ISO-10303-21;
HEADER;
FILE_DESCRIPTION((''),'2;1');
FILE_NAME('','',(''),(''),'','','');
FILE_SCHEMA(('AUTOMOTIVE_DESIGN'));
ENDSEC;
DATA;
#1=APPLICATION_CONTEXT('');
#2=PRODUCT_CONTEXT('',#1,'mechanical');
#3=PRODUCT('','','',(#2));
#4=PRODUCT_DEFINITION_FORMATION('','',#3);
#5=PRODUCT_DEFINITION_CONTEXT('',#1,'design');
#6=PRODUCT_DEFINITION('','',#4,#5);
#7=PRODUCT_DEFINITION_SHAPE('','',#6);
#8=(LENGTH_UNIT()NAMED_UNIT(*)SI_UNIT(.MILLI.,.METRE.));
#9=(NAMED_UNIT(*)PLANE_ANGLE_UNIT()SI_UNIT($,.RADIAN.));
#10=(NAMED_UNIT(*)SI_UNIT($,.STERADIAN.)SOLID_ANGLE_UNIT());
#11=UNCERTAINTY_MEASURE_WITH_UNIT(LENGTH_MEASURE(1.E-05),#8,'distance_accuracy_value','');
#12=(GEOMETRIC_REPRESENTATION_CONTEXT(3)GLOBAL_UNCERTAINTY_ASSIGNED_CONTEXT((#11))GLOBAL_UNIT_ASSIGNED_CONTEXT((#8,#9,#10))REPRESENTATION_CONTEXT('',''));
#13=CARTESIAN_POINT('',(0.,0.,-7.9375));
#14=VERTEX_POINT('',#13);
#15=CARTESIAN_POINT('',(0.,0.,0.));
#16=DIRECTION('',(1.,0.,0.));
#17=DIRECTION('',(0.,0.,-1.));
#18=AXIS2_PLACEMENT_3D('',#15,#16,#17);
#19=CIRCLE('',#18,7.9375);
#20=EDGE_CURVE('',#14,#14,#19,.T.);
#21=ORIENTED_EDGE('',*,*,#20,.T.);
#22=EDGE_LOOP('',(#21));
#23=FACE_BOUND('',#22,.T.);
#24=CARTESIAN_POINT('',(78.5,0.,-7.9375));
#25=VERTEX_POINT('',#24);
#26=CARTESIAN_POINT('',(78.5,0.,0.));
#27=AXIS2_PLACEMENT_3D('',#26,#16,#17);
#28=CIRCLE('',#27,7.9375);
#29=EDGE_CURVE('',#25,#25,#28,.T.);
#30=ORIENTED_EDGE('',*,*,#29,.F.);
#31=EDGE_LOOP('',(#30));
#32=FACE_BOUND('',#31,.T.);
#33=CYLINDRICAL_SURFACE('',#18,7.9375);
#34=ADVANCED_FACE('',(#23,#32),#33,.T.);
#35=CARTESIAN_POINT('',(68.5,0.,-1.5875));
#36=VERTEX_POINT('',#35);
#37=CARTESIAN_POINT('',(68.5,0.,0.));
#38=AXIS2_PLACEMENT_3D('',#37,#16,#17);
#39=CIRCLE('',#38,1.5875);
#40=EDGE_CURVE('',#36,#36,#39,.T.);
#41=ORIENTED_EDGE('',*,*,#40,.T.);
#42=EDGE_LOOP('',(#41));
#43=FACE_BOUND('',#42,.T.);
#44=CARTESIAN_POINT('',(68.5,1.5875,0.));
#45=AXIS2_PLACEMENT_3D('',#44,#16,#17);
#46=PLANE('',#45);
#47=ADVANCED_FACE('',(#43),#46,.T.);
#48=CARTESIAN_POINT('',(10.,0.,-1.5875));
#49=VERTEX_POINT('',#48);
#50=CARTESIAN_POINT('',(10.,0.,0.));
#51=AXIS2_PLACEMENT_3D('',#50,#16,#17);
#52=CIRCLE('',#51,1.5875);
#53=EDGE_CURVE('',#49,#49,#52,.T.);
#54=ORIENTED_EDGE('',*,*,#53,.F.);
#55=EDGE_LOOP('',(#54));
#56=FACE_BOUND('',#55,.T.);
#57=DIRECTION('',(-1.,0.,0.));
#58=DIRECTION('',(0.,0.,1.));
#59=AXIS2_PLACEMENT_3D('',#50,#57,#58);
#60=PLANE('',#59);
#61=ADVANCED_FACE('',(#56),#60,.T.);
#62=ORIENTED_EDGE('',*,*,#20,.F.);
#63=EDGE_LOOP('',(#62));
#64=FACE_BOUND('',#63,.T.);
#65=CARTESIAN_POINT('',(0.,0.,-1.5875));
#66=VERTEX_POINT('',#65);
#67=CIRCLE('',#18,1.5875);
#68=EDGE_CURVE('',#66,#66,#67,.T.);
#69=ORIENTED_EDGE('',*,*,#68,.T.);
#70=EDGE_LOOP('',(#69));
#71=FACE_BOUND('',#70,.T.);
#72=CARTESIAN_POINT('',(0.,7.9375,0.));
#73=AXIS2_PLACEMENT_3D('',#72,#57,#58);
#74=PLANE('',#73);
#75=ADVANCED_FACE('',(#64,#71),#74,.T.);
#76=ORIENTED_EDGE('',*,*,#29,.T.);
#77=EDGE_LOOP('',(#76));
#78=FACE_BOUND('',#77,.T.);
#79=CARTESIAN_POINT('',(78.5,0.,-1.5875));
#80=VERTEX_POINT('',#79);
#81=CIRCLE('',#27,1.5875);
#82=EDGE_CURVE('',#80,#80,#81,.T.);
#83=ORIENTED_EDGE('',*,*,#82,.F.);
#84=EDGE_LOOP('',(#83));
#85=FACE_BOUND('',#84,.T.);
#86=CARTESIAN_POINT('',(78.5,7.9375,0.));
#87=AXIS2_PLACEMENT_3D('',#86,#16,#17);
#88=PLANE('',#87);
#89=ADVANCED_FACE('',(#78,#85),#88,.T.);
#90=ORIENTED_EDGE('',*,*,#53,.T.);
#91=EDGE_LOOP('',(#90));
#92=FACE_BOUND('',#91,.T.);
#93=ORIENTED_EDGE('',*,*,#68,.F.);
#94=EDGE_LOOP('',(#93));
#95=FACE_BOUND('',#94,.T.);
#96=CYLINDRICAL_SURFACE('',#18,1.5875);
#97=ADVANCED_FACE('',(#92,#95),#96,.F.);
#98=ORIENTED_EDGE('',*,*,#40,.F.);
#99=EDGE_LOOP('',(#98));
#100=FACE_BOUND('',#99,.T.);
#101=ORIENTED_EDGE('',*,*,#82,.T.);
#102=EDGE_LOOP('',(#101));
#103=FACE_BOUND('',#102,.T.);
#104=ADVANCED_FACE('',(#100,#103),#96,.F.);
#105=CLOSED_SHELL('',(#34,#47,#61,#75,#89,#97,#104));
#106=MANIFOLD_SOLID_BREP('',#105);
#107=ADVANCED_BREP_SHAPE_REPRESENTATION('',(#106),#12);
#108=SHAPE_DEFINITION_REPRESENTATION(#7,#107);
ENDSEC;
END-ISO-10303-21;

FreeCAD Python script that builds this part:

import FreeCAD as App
import Part
import Sketcher

V = App.Vector

doc = App.newDocument("Part")
body = doc.addObject("PartDesign::Body", "Body")

# Sketch on XY plane
sketch1 = body.newObject("Sketcher::SketchObject", "Sketch")
sketch1.AttachmentSupport = (doc.getObject("XY_Plane"), [""])
sketch1.MapMode = "FlatFace"
sketch1.addGeometry([
    Part.LineSegment(V(78.5, 7.9, 0), V(0, 7.9, 0)),  # 0
    Part.LineSegment(V(0, 7.9, 0), V(0, 1.6, 0)),  # 1
    Part.LineSegment(V(0, 1.6, 0), V(10, 1.6, 0)),  # 2
    Part.LineSegment(V(10, 1.6, 0), V(10, 0, 0)),  # 3
    Part.LineSegment(V(10, 0, 0), V(68.5, 0, 0)),  # 4
    Part.LineSegment(V(68.5, 0, 0), V(68.5, 1.6, 0)),  # 5
    Part.LineSegment(V(68.5, 1.6, 0), V(78.5, 1.6, 0)),  # 6
    Part.LineSegment(V(78.5, 1.6, 0), V(78.5, 7.9, 0)),  # 7
], False)
sketch1.addConstraint([
    Sketcher.Constraint("Coincident", 0, 2, 1, 1),
    Sketcher.Constraint("Coincident", 1, 2, 2, 1),
    Sketcher.Constraint("Coincident", 2, 2, 3, 1),
    Sketcher.Constraint("Coincident", 3, 2, 4, 1),
    Sketcher.Constraint("Coincident", 4, 2, 5, 1),
    Sketcher.Constraint("Coincident", 5, 2, 6, 1),
    Sketcher.Constraint("Coincident", 6, 2, 7, 1),
    Sketcher.Constraint("Coincident", 7, 2, 0, 1),
    Sketcher.Constraint("Horizontal", 0),
    Sketcher.Constraint("Vertical", 1),
    Sketcher.Constraint("Horizontal", 2),
    Sketcher.Constraint("Vertical", 3),
    Sketcher.Constraint("Horizontal", 4),
    Sketcher.Constraint("Vertical", 5),
    Sketcher.Constraint("Horizontal", 6),
    Sketcher.Constraint("Vertical", 7),
    Sketcher.Constraint("PointOnObject", 0, 2, -2),
    Sketcher.Constraint("PointOnObject", 3, 2, -1),
    Sketcher.Constraint("Horizontal", 2, 2, 5, 2),
    Sketcher.Constraint("Equal", 2, 6),
    Sketcher.Constraint("DistanceX", 2, 1, 2, 2, 10.0),
    Sketcher.Constraint("DistanceX", 0, 2, 0, 1, 78.5),
    Sketcher.Constraint("DistanceY", 1, 2, 1, 1, 6.35),
    Sketcher.Constraint("DistanceY", 3, 2, 3, 1, 1.5875),
])
revolution = body.newObject("PartDesign::Revolution", "Revolution")
revolution.Profile = sketch1
revolution.ReferenceAxis = (sketch1, ["H_Axis"])
revolution.Angle = 360

doc.recompute()
